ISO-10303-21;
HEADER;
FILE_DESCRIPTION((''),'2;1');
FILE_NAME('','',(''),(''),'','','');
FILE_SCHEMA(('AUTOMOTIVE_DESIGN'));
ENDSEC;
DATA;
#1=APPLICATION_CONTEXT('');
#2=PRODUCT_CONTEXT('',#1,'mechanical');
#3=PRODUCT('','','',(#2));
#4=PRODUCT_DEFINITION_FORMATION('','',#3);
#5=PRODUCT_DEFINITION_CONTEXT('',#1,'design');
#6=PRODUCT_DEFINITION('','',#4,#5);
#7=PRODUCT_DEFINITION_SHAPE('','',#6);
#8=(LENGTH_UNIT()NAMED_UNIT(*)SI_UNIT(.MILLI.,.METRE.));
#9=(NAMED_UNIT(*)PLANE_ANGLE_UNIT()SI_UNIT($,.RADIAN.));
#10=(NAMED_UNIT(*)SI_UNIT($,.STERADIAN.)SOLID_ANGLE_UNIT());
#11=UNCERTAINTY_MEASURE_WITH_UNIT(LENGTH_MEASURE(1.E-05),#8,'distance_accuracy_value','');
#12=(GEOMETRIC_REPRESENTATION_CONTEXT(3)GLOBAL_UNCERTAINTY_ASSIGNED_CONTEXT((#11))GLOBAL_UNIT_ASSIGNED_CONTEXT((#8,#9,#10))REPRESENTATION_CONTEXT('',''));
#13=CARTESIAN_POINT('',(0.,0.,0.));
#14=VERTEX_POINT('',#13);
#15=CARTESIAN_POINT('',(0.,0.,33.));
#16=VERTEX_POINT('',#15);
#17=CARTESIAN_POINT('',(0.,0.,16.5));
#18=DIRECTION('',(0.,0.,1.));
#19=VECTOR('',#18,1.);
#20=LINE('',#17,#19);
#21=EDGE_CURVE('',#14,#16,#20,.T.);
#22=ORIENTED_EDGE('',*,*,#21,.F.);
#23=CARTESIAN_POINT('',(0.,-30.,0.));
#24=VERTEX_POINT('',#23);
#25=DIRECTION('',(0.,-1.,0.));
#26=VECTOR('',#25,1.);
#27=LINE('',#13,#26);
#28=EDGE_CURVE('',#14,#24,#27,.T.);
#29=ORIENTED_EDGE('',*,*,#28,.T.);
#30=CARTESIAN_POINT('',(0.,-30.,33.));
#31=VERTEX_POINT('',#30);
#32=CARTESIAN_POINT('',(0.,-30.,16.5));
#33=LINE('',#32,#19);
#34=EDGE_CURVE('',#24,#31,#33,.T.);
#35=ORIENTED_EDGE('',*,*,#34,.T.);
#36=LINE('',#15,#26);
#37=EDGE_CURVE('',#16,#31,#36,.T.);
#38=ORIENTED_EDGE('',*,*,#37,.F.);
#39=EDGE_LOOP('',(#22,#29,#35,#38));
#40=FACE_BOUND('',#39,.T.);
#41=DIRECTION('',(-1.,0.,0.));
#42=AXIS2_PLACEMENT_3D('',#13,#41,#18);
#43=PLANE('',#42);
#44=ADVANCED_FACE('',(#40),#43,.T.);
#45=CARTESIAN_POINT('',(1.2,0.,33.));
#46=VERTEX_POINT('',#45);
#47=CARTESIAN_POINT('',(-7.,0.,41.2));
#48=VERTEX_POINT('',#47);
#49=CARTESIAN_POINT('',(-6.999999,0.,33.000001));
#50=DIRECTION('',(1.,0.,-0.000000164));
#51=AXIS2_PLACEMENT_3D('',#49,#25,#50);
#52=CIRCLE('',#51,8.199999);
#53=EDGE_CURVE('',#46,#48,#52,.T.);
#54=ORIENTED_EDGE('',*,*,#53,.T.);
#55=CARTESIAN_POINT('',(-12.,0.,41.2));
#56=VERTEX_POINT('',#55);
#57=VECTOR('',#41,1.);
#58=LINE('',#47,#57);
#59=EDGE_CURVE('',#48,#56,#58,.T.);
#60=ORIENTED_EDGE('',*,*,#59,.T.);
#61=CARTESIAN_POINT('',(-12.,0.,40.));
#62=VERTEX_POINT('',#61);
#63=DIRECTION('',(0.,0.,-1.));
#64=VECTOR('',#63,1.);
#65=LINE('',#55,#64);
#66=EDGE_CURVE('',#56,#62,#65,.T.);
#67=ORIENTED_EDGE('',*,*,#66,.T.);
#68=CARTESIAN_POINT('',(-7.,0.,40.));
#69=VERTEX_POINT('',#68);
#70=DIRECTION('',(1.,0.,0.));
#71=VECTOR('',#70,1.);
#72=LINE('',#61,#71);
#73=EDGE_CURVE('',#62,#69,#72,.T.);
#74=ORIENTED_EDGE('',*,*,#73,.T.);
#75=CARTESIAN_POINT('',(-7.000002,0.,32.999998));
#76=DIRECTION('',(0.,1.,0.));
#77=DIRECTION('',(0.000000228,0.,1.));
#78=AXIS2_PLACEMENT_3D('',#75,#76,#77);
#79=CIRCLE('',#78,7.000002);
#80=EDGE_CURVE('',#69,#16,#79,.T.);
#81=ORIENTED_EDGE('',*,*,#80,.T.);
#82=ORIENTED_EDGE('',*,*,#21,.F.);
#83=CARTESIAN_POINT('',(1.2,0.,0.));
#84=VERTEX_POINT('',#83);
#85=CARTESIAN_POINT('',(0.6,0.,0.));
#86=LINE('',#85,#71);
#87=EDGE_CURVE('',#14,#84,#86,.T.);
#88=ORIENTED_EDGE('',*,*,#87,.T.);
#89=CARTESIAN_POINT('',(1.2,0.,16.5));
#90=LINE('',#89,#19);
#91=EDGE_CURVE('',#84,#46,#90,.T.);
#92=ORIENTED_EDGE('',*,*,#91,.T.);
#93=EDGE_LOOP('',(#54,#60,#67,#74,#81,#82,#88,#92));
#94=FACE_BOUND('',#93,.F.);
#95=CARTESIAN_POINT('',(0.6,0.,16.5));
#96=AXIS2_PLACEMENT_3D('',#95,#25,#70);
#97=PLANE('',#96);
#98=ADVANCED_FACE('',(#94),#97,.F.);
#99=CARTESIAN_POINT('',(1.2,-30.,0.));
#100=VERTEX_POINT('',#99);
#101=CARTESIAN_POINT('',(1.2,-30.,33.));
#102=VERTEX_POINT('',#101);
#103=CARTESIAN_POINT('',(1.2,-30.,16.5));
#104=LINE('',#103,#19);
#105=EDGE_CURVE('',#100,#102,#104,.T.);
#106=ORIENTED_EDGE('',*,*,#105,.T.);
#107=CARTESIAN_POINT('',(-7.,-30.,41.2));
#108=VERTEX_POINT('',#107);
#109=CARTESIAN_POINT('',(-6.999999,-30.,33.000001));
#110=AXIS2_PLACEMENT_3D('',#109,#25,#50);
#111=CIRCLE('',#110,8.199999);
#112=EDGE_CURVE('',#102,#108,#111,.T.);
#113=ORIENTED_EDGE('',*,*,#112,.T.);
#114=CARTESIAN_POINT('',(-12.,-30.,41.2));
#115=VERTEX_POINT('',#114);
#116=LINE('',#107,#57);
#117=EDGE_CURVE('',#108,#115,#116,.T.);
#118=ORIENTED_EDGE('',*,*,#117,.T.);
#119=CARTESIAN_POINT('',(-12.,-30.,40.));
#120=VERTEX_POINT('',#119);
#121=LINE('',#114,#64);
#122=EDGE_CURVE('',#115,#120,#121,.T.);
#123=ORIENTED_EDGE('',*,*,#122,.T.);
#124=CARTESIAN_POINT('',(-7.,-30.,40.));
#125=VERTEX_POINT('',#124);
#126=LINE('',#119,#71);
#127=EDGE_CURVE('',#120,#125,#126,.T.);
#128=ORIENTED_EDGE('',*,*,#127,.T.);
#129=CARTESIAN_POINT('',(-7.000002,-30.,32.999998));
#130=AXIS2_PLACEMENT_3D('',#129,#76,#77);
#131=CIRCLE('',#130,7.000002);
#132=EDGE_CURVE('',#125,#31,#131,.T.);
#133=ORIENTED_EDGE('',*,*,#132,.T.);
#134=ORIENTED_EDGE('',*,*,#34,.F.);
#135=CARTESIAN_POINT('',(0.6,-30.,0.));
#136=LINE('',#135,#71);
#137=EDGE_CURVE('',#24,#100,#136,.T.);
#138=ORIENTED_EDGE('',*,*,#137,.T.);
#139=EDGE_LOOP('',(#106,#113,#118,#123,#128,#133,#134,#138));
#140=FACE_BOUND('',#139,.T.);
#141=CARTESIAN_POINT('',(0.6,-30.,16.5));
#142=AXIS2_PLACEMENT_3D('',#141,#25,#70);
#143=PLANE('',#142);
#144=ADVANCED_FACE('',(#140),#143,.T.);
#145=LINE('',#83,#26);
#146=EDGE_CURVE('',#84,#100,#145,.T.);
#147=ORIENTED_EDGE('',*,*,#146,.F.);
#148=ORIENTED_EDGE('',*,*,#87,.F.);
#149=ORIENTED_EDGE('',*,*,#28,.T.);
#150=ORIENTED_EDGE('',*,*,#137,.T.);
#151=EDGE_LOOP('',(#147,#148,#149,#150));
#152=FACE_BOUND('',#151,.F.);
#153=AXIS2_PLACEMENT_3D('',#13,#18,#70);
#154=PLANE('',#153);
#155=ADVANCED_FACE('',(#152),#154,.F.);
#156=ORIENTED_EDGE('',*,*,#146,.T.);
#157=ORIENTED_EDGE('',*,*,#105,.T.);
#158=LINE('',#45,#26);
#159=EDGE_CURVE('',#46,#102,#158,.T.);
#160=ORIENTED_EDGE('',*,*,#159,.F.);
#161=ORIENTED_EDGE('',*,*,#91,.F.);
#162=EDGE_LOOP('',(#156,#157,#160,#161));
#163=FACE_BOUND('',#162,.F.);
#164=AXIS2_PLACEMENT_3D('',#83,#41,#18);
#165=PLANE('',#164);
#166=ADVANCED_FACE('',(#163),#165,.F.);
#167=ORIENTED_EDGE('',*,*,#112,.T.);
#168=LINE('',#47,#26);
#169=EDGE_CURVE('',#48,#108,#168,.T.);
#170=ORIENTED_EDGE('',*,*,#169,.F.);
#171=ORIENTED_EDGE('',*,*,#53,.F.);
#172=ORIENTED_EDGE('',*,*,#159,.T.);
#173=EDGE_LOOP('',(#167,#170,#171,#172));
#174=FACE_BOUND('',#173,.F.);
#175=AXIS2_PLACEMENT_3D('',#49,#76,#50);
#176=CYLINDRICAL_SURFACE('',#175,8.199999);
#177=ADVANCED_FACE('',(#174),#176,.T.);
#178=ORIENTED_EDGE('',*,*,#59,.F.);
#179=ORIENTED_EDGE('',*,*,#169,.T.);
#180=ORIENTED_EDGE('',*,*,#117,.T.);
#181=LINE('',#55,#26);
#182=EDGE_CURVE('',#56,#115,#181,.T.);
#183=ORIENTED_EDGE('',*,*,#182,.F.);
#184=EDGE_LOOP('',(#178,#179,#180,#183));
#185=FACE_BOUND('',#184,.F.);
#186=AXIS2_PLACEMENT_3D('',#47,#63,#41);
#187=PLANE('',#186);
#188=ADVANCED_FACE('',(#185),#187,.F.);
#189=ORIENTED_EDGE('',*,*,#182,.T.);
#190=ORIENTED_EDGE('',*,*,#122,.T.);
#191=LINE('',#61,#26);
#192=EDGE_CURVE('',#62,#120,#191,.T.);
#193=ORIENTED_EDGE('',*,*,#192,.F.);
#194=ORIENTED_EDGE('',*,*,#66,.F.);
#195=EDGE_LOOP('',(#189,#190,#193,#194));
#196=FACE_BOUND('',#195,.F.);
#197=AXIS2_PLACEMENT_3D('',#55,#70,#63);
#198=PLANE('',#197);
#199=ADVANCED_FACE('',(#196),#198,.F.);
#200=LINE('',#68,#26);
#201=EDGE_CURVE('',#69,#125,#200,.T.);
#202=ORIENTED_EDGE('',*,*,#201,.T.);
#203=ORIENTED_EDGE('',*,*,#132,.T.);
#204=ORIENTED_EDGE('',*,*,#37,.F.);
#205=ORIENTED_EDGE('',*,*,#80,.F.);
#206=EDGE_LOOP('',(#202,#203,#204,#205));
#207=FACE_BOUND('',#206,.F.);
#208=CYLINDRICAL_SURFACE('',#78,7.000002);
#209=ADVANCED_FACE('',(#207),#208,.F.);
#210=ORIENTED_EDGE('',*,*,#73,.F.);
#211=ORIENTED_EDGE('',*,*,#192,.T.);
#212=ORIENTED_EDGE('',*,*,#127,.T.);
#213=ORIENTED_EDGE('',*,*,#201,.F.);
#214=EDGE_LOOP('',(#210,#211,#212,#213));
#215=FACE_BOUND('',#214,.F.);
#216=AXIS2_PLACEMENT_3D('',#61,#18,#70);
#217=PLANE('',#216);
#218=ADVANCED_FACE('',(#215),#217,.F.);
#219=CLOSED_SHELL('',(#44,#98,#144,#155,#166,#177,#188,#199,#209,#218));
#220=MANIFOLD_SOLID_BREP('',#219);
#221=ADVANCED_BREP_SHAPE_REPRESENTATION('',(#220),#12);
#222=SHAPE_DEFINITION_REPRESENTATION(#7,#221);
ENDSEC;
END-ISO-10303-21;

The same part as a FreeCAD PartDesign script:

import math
import FreeCAD as App
import Part
import Sketcher
from FreeCAD import Vector
Q = App.Units.Quantity

doc = App.newDocument("Part")
body = doc.addObject("PartDesign::Body", "Body")

# Sketch on XZ plane
sketch1 = body.newObject("Sketcher::SketchObject", "Sketch")
sketch1.AttachmentSupport = (doc.getObject("XZ_Plane"), [""])
sketch1.MapMode = "FlatFace"
sketch1.addGeometry([
    Part.LineSegment(Vector(0, 33, 0), Vector(0, 0, 0)),  # 0
    Part.LineSegment(Vector(0, 0, 0), Vector(1.2, 0, 0)),  # 1
    Part.LineSegment(Vector(1.2, 0, 0), Vector(1.2, 33, 0)),  # 2
    Part.ArcOfCircle(Part.Circle(Vector(-7, 33, 0), Vector(0, 0, 1), 8.2), math.radians(0), math.radians(90)),  # 3
    Part.LineSegment(Vector(-7, 41.2, 0), Vector(-12, 41.2, 0)),  # 4
    Part.LineSegment(Vector(-12, 41.2, 0), Vector(-12, 40, 0)),  # 5
    Part.LineSegment(Vector(-12, 40, 0), Vector(-7, 40, 0)),  # 6
    Part.ArcOfCircle(Part.Circle(Vector(-7, 33, 0), Vector(0, 0, 1), 7), math.radians(0), math.radians(90)),  # 7
], False)
sketch1.addConstraint([
    Sketcher.Constraint("Coincident", 0, 2, 1, 1),
    Sketcher.Constraint("Coincident", 1, 2, 2, 1),
    Sketcher.Constraint("Tangent", 2, 2, 3, 1),
    Sketcher.Constraint("Tangent", 3, 2, 4, 1),
    Sketcher.Constraint("Coincident", 4, 2, 5, 1),
    Sketcher.Constraint("Coincident", 5, 2, 6, 1),
    Sketcher.Constraint("Tangent", 6, 2, 7, 2),
    Sketcher.Constraint("Tangent", 7, 1, 0, 1),
    Sketcher.Constraint("Vertical", 0),
    Sketcher.Constraint("Horizontal", 1),
    Sketcher.Constraint("Vertical", 2),
    Sketcher.Constraint("Horizontal", 4),
    Sketcher.Constraint("Vertical", 5),
    Sketcher.Constraint("Horizontal", 6),
    Sketcher.Constraint("Coincident", 0, 2, -1, 1),
    Sketcher.Constraint("Coincident", 7, 3, 3, 3),
    Sketcher.Constraint("Radius", 7, Q("7.000002 mm")),
    Sketcher.Constraint("Radius", 3, Q("8.199999 mm")),
    Sketcher.Constraint("DistanceX", 4, 2, 4, 1, Q("5 mm")),
    Sketcher.Constraint("DistanceY", 0, 2, 0, 1, Q("33 mm")),
])
pad1 = body.newObject("PartDesign::Pad", "Pad")
pad1.Profile = sketch1
pad1.Length = 30

doc.recompute()
